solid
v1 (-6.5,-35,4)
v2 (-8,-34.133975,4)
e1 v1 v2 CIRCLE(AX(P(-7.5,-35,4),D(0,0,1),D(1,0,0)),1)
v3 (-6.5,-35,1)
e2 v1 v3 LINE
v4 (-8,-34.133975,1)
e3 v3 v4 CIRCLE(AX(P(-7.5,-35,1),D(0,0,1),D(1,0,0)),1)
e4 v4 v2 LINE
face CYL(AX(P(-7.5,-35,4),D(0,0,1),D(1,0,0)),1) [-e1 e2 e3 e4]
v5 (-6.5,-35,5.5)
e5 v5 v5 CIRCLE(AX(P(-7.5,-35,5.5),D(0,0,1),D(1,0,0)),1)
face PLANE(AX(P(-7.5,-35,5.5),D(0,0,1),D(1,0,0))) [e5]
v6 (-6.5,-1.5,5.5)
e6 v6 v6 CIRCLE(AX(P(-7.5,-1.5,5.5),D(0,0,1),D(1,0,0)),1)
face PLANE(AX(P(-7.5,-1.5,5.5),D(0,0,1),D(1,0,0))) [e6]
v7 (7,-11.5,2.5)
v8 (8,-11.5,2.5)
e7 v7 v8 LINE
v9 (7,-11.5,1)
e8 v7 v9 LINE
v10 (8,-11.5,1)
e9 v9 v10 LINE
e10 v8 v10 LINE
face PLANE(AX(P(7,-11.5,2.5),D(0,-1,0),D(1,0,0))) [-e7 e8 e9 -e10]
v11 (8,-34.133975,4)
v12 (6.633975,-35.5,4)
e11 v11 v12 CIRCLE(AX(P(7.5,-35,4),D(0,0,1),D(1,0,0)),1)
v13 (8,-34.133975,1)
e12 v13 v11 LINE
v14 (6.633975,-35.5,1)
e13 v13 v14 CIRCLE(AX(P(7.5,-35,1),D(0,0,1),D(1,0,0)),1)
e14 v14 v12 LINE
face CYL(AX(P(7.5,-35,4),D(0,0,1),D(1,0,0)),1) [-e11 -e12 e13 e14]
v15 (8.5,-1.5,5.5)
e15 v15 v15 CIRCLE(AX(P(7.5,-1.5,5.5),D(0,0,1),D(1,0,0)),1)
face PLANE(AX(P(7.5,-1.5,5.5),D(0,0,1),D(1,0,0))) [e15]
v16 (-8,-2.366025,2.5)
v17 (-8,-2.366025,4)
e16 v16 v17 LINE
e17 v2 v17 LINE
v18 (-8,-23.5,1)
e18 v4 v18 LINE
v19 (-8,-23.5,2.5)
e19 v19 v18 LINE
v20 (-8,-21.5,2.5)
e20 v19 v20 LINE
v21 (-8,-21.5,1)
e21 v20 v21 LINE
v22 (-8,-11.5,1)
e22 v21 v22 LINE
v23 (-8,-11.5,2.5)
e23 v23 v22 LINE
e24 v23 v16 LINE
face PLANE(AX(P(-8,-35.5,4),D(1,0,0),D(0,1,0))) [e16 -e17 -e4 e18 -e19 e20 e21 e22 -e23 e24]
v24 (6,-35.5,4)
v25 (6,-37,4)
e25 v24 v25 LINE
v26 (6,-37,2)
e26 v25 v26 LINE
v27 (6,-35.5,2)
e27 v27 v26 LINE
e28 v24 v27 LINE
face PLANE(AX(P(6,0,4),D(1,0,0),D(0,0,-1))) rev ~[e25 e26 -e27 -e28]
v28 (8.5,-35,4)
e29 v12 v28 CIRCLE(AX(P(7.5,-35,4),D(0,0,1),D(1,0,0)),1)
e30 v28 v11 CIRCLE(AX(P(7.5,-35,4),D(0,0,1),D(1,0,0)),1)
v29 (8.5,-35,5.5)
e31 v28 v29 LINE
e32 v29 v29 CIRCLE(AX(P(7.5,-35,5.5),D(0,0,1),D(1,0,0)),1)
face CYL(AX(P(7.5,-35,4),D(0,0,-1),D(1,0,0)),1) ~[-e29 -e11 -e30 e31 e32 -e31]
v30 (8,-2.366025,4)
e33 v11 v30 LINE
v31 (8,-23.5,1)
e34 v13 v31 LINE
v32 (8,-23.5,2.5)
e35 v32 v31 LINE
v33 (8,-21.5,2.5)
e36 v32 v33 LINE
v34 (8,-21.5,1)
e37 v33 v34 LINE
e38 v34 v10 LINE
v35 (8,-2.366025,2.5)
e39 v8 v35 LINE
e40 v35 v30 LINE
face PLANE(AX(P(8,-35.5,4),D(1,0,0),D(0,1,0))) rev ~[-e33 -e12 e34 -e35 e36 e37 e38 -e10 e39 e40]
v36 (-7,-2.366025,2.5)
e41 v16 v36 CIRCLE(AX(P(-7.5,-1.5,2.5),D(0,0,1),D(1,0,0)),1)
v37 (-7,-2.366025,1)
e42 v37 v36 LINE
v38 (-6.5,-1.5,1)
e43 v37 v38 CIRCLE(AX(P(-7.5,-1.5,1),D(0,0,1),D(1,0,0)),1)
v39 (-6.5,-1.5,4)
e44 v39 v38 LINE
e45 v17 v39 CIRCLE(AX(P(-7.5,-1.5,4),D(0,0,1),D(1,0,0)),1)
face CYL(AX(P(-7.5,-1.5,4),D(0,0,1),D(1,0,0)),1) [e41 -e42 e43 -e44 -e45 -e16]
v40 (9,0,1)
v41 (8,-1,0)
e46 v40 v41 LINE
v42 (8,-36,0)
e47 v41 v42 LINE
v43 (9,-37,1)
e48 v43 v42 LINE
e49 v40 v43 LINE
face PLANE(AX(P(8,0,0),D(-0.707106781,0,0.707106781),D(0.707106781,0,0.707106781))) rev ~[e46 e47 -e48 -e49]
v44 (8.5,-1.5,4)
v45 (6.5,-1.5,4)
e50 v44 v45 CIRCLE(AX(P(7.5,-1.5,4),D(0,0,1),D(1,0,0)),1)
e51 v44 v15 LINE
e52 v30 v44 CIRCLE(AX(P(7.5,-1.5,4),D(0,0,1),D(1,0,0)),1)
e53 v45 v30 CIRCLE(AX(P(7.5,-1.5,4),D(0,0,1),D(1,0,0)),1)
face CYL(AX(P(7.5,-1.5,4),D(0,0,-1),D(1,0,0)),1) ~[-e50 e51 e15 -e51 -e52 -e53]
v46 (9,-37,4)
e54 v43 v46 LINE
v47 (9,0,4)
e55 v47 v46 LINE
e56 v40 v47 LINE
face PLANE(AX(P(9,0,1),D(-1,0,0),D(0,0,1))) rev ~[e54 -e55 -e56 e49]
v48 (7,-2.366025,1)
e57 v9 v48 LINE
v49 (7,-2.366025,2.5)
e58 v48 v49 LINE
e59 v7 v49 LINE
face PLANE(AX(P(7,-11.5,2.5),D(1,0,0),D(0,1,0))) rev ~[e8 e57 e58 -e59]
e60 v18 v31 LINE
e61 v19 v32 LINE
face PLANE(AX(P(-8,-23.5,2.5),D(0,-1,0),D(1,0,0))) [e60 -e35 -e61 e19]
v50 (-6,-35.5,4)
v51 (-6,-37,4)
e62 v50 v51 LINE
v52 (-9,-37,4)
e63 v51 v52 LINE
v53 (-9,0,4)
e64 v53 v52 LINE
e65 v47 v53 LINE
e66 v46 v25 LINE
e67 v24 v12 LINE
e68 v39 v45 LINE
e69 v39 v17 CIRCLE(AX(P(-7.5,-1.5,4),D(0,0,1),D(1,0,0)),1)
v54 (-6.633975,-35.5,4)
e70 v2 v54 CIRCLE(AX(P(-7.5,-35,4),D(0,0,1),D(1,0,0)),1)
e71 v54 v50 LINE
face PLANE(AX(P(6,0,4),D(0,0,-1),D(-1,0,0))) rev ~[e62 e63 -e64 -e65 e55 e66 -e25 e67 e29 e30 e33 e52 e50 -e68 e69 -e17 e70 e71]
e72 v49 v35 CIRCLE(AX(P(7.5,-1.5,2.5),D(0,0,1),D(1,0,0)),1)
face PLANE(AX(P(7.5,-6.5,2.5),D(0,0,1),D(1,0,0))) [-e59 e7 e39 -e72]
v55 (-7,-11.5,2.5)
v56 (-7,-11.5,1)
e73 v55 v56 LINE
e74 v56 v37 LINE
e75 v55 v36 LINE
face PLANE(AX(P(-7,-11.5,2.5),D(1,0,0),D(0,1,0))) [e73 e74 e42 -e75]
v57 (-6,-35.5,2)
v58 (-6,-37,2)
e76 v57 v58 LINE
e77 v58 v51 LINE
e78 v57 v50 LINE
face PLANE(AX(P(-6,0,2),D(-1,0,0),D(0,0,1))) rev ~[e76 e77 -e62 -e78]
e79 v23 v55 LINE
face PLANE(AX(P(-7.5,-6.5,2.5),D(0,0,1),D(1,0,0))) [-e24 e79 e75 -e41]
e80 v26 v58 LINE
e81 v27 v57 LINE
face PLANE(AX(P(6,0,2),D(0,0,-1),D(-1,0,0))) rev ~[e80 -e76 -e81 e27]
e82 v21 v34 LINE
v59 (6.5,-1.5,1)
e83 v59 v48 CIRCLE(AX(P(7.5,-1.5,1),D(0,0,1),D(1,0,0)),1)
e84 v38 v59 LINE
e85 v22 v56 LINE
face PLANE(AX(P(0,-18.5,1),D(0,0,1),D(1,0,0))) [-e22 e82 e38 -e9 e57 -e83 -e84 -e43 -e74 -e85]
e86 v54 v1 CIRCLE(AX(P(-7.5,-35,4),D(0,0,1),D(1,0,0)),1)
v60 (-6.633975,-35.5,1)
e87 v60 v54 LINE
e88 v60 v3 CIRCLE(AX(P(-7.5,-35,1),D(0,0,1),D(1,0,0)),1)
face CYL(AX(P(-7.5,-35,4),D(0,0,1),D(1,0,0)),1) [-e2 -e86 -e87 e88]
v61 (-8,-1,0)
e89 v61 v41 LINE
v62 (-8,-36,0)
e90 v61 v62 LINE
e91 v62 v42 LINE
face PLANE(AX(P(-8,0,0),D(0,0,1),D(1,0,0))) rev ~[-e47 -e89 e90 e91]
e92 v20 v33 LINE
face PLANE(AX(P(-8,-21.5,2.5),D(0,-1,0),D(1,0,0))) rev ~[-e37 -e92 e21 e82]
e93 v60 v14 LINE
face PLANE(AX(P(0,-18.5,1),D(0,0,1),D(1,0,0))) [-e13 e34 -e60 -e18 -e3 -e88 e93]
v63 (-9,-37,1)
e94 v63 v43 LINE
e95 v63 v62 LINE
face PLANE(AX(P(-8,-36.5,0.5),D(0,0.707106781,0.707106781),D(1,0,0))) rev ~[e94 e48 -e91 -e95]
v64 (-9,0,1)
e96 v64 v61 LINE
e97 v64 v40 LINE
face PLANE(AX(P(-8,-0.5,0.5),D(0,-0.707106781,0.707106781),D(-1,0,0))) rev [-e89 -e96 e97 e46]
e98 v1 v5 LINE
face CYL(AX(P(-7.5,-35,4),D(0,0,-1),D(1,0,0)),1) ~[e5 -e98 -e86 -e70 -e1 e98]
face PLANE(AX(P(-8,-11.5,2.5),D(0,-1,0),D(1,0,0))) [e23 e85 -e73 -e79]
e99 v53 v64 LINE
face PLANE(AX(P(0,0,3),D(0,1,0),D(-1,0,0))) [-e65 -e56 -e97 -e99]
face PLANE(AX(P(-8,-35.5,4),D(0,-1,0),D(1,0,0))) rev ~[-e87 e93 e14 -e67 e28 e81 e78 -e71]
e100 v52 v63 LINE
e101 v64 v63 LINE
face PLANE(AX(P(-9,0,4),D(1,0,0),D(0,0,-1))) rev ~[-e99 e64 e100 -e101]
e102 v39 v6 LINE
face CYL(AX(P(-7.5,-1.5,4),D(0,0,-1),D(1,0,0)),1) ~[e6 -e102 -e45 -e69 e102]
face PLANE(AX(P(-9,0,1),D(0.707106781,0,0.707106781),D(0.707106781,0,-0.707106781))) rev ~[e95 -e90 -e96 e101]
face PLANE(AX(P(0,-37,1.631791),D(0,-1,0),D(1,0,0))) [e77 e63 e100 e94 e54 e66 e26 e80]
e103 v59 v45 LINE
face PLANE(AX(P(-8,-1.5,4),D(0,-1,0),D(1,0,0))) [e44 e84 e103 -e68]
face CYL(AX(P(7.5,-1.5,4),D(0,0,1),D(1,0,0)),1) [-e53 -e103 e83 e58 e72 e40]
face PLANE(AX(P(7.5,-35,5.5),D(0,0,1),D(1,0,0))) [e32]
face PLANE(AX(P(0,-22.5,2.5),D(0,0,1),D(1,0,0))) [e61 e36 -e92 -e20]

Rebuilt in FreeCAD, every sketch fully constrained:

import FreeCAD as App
import Part
import Sketcher
from FreeCAD import Vector
Q = App.Units.Quantity


def edges_at(feature, points):
    """Names of the edges that pass closest to the given points."""
    edges = feature.Shape.Edges
    near = lambda p: min(range(len(edges)), key=lambda i: edges[i].distToShape(Part.Vertex(*p))[0])
    return sorted({f"Edge{near(p) + 1}" for p in points})


def add_polygon(sketch, points):
    """Adds a closed chain of lines whose ends are joined by coincident constraints."""
    first, n = sketch.GeometryCount, len(points)
    for a, b in zip(points, points[1:] + points[:1]):
        sketch.addGeometry(Part.LineSegment(App.Vector(*a, 0), App.Vector(*b, 0)), False)
    for i in range(n):
        sketch.addConstraint(Sketcher.Constraint("Coincident", first + i, 2, first + (i + 1) % n, 1))

doc = App.newDocument("Part")
body = doc.addObject("PartDesign::Body", "Body")

sketch1 = body.newObject("Sketcher::SketchObject", "Sketch")
sketch1.AttachmentSupport = (doc.getObject("XZ_Plane"), [""])
sketch1.MapMode = "FlatFace"
add_polygon(sketch1, [(-9, 1), (-8, 0), (8, 0), (9, 1), (9, 4), (6, 4), (6, 2), (-6, 2), (-6, 4), (-9, 4)])
sketch1.addConstraint([
    Sketcher.Constraint("Horizontal", 1),
    Sketcher.Constraint("Vertical", 3),
    Sketcher.Constraint("Horizontal", 4),
    Sketcher.Constraint("Vertical", 5),
    Sketcher.Constraint("Horizontal", 6),
    Sketcher.Constraint("Vertical", 7),
    Sketcher.Constraint("Horizontal", 8),
    Sketcher.Constraint("Vertical", 9),
    Sketcher.Constraint("Symmetric", 0, 2, 1, 2, -1, 1),
    Sketcher.Constraint("Symmetric", 4, 2, 7, 2, -2),
    Sketcher.Constraint("Symmetric", 2, 2, 9, 2, -2),
    Sketcher.Constraint("Perpendicular", 0, 2),
    Sketcher.Constraint("Equal", 8, 3),
    Sketcher.Constraint("DistanceX", 1, 1, 1, 2, Q("16 mm")),
    Sketcher.Constraint("DistanceX", 4, 2, 4, 1, Q("3 mm")),
    Sketcher.Constraint("DistanceX", 6, 2, 6, 1, Q("12 mm")),
    Sketcher.Constraint("DistanceY", 5, 2, 5, 1, Q("2 mm")),
])
pad1 = body.newObject("PartDesign::Pad", "Pad")
pad1.Profile = sketch1
pad1.Length = 37

sketch2 = body.newObject("Sketcher::SketchObject", "Sketch001")
sketch2.AttachmentSupport = (doc.getObject("XZ_Plane"), [""])
sketch2.MapMode = "FlatFace"
add_polygon(sketch2, [(6, 4), (6, 2), (-6, 2), (-6, 4)])
sketch2.addConstraint([
    Sketcher.Constraint("Vertical", 0),
    Sketcher.Constraint("Horizontal", 1),
    Sketcher.Constraint("Vertical", 2),
    Sketcher.Constraint("Horizontal", 3),
    Sketcher.Constraint("DistanceX", 1, 2, 1, 1, Q("12 mm")),
    Sketcher.Constraint("DistanceY", 0, 2, 0, 1, Q("2 mm")),
    Sketcher.Constraint("DistanceX", -1, 1, 0, 2, Q("6 mm")),
    Sketcher.Constraint("DistanceY", -1, 1, 0, 2, Q("2 mm")),
])
pad2 = body.newObject("PartDesign::Pad", "Pad001")
pad2.Profile = sketch2
pad2.Length = 2

sketch3 = body.newObject("Sketcher::SketchObject", "Sketch002")
sketch3.AttachmentSupport = (doc.getObject("XY_Plane"), [""])
sketch3.MapMode = "FlatFace"
sketch3.AttachmentOffset = App.Placement(Vector(0, 0, 4), App.Rotation())
add_polygon(sketch3, [(-8, -2), (-8, -36), (8, -36), (8, -2)])
sketch3.addConstraint([
    Sketcher.Constraint("Vertical", 0),
    Sketcher.Constraint("Horizontal", 1),
    Sketcher.Constraint("Vertical", 2),
    Sketcher.Constraint("Horizontal", 3),
    Sketcher.Constraint("DistanceX", 1, 1, 1, 2, Q("16 mm")),
    Sketcher.Constraint("DistanceY", 0, 2, 0, 1, Q("34 mm")),
    Sketcher.Constraint("DistanceX", 0, 2, -1, 1, Q("8 mm")),
    Sketcher.Constraint("DistanceY", 0, 2, -1, 1, Q("35.5 mm")),
])
pocket1 = body.newObject("PartDesign::Pocket", "Pocket")
pocket1.Profile = sketch3
pocket1.Length = 3

sketch4 = body.newObject("Sketcher::SketchObject", "Sketch003")
sketch4.AttachmentSupport = (doc.getObject("XY_Plane"), [""])
sketch4.MapMode = "FlatFace"
sketch4.AttachmentOffset = App.Placement(Vector(0, 0, 2.5), App.Rotation())
add_polygon(sketch4, [(-8, -1.5), (-8, -11.5), (-7, -11.5), (-7, -1.5)])
add_polygon(sketch4, [(7, -1.5), (7, -11.5), (8, -11.5), (8, -1.5)])
add_polygon(sketch4, [(-8, -21.5), (-8, -23.5), (8, -23.5), (8, -21.5)])
sketch4.addConstraint([
    Sketcher.Constraint("Vertical", 0),
    Sketcher.Constraint("Horizontal", 1),
    Sketcher.Constraint("Vertical", 2),
    Sketcher.Constraint("Horizontal", 3),
    Sketcher.Constraint("Vertical", 4),
    Sketcher.Constraint("Horizontal", 5),
    Sketcher.Constraint("Vertical", 6),
    Sketcher.Constraint("Horizontal", 7),
    Sketcher.Constraint("Vertical", 8),
    Sketcher.Constraint("Horizontal", 9),
    Sketcher.Constraint("Vertical", 10),
    Sketcher.Constraint("Horizontal", 11),
    Sketcher.Constraint("Symmetric", 1, 2, 4, 2, -2),
    Sketcher.Constraint("Symmetric", 3, 2, 6, 2, -2),
    Sketcher.Constraint("Vertical", 3, 2, 8, 2),
    Sketcher.Constraint("Vertical", 6, 2, 9, 2),
    Sketcher.Constraint("DistanceX", 1, 1, 1, 2, Q("1 mm")),
    Sketcher.Constraint("DistanceX", 9, 1, 9, 2, Q("16 mm")),
    Sketcher.Constraint("DistanceY", 0, 2, 0, 1, Q("10 mm")),
    Sketcher.Constraint("DistanceY", 8, 2, 8, 1, Q("2 mm")),
    Sketcher.Constraint("DistanceY", 8, 2, 0, 2, Q("12 mm")),
    Sketcher.Constraint("DistanceY", 0, 2, -1, 1, Q("11.5 mm")),
])
pad3 = body.newObject("PartDesign::Pad", "Pad002")
pad3.Profile = sketch4
pad3.Type = "UpToLast"
pad3.Reversed = True
doc.recompute()

chamfer = body.newObject("PartDesign::Chamfer", "Chamfer")
chamfer.Base = (pad3, edges_at(pad3, [(0, 0, 0), (0, -37, 0)]))
chamfer.Size = 1

sketch5 = body.newObject("Sketcher::SketchObject", "Sketch004")
sketch5.AttachmentSupport = (doc.getObject("XY_Plane"), [""])
sketch5.MapMode = "FlatFace"
sketch5.AttachmentOffset = App.Placement(Vector(0, 0, 4), App.Rotation())
sketch5.addGeometry([
    Part.Circle(Vector(7.5, -35, 0), Vector(0, 0, 1), 1),
    Part.Circle(Vector(-7.5, -35, 0), Vector(0, 0, 1), 1),
    Part.Circle(Vector(-7.5, -1.5, 0), Vector(0, 0, 1), 1),
    Part.Circle(Vector(7.5, -1.5, 0), Vector(0, 0, 1), 1),
], False)
sketch5.addConstraint([
    Sketcher.Constraint("Equal", 0, 1),
    Sketcher.Constraint("Equal", 1, 2),
    Sketcher.Constraint("Equal", 2, 3),
    Sketcher.Constraint("Symmetric", 0, 3, 1, 3, -2),
    Sketcher.Constraint("Symmetric", 2, 3, 3, 3, -2),
    Sketcher.Constraint("Vertical", 1, 3, 2, 3),
    Sketcher.Constraint("Diameter", 0, Q("2 mm")),
    Sketcher.Constraint("DistanceY", 0, 3, -1, 1, Q("35 mm")),
    Sketcher.Constraint("DistanceX", 1, 3, 0, 3, Q("15 mm")),
    Sketcher.Constraint("DistanceY", 2, 3, -1, 1, Q("1.5 mm")),
])
pad4 = body.newObject("PartDesign::Pad", "Pad003")
pad4.Profile = sketch5
pad4.Type = "TwoLengths"
pad4.Length = 1.5
pad4.Length2 = 3

doc.recompute()
